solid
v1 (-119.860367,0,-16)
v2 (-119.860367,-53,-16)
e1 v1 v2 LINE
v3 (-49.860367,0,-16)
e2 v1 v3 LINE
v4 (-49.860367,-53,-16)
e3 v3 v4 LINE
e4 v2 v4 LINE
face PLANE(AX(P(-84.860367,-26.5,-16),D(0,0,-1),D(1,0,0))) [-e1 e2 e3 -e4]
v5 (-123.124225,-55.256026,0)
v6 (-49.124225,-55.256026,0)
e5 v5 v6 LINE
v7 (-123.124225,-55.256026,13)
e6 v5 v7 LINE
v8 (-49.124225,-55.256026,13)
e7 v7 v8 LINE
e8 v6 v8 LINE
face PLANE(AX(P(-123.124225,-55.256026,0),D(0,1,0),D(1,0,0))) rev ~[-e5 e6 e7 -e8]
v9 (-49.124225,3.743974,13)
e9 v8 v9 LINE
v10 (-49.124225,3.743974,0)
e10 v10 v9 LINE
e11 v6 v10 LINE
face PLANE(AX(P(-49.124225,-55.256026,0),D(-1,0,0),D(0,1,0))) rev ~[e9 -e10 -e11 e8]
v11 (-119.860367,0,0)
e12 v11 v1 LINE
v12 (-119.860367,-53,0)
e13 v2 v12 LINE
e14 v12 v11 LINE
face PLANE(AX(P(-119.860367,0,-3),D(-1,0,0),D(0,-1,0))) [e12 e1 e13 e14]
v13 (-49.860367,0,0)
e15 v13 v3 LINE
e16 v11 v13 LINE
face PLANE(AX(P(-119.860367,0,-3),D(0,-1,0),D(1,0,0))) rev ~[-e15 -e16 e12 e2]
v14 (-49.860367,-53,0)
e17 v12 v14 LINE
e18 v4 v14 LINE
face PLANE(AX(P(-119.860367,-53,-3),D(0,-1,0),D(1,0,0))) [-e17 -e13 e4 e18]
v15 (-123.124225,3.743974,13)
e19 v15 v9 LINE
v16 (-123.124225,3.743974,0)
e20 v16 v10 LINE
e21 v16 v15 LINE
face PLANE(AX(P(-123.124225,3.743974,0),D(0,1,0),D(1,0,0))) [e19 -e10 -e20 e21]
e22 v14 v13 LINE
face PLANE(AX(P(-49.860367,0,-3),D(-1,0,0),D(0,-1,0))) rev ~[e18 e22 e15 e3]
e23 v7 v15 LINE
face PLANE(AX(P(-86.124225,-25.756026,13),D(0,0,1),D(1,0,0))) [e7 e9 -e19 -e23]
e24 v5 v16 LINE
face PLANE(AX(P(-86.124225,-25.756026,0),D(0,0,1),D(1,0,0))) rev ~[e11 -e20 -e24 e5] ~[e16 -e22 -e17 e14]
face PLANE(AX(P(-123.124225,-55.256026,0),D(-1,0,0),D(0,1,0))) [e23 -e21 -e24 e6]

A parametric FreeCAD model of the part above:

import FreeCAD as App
import Part
import Sketcher

V = App.Vector
Q = App.Units.Quantity


def add_polygon(sketch, points):
    """Adds a closed chain of lines whose ends are joined by coincident constraints."""
    first, n = sketch.GeometryCount, len(points)
    for a, b in zip(points, points[1:] + points[:1]):
        sketch.addGeometry(Part.LineSegment(App.Vector(*a, 0), App.Vector(*b, 0)), False)
    for i in range(n):
        sketch.addConstraint(Sketcher.Constraint("Coincident", first + i, 2, first + (i + 1) % n, 1))

doc = App.newDocument("Part")
params = doc.addObject("Spreadsheet::Sheet", "Params")
for row, (alias, value) in enumerate([
    ("sketch1_width", "74 mm"),
    ("sketch1_height", "59 mm"),
    ("pad1_length", "13 mm"),
    ("sketch2_width", "70 mm"),
    ("sketch2_height", "53 mm"),
    ("pad2_length", "3 mm"),
    ("sketch3_width", "70 mm"),
    ("sketch3_height", "53 mm"),
    ("pad3_length", "13 mm"),
], start=1):
    params.set(f"A{row}", alias)
    params.set(f"B{row}", "=" + value)
    params.setAlias(f"B{row}", alias)

body = doc.addObject("PartDesign::Body", "Body")

# Sketch on XY plane
sketch1 = doc.addObject("Sketcher::SketchObject", "Sketch")
body.addObject(sketch1)
sketch1.AttachmentSupport = (doc.XY_Plane, [""])
sketch1.MapMode = "FlatFace"
add_polygon(sketch1, [(-123.124225, 3.743974), (-123.124225, -55.256026), (-49.124225, -55.256026), (-49.124225, 3.743974)])  # lines 0-3
sketch1.addConstraint([
    Sketcher.Constraint("Vertical", 0),
    Sketcher.Constraint("Horizontal", 1),
    Sketcher.Constraint("Vertical", 2),
    Sketcher.Constraint("Horizontal", 3),
    Sketcher.Constraint("DistanceX", 1, 1, 1, 2, Q("74 mm")),
    Sketcher.Constraint("DistanceY", 0, 2, 0, 1, Q("59 mm")),
    Sketcher.Constraint("DistanceX", 0, 2, -1, 1, Q("123.124225 mm")),
    Sketcher.Constraint("DistanceY", 0, 2, -1, 1, Q("55.256026 mm")),
])
sketch1.setExpression("Constraints[8]", "Params.sketch1_width")
sketch1.setExpression("Constraints[9]", "Params.sketch1_height")
pad1 = doc.addObject("PartDesign::Pad", "Pad")
body.addObject(pad1)
pad1.Profile = sketch1
pad1.setExpression("Length", "Params.pad1_length")

# Sketch on XY plane
sketch2 = doc.addObject("Sketcher::SketchObject", "Sketch001")
body.addObject(sketch2)
sketch2.AttachmentSupport = (doc.XY_Plane, [""])
sketch2.MapMode = "FlatFace"
add_polygon(sketch2, [(-119.860367, 0), (-119.860367, -53), (-49.860367, -53), (-49.860367, 0)])  # lines 0-3
sketch2.addConstraint([
    Sketcher.Constraint("Vertical", 0),
    Sketcher.Constraint("Horizontal", 1),
    Sketcher.Constraint("Vertical", 2),
    Sketcher.Constraint("Horizontal", 3),
    Sketcher.Constraint("PointOnObject", 2, 2, -1),
    Sketcher.Constraint("DistanceX", 1, 1, 1, 2, Q("70 mm")),
    Sketcher.Constraint("DistanceY", 0, 2, 0, 1, Q("53 mm")),
    Sketcher.Constraint("DistanceX", 0, 2, -1, 1, Q("119.860367 mm")),
])
sketch2.setExpression("Constraints[9]", "Params.sketch2_width")
sketch2.setExpression("Constraints[10]", "Params.sketch2_height")
pad2 = doc.addObject("PartDesign::Pad", "Pad001")
body.addObject(pad2)
pad2.Profile = sketch2
pad2.setExpression("Length", "Params.pad2_length")
pad2.Reversed = True

# Sketch on XY plane
sketch3 = doc.addObject("Sketcher::SketchObject", "Sketch002")
body.addObject(sketch3)
sketch3.AttachmentSupport = (doc.XY_Plane, [""])
sketch3.MapMode = "FlatFace"
sketch3.AttachmentOffset = App.Placement(V(0, 0, -3), App.Rotation())
add_polygon(sketch3, [(-119.860367, -53), (-119.860367, 0), (-49.860367, 0), (-49.860367, -53)])  # lines 0-3
sketch3.addConstraint([
    Sketcher.Constraint("Vertical", 0),
    Sketcher.Constraint("Horizontal", 1),
    Sketcher.Constraint("Vertical", 2),
    Sketcher.Constraint("Horizontal", 3),
    Sketcher.Constraint("PointOnObject", 0, 2, -1),
    Sketcher.Constraint("DistanceX", 1, 1, 1, 2, Q("70 mm")),
    Sketcher.Constraint("DistanceY", 0, 1, 0, 2, Q("53 mm")),
    Sketcher.Constraint("DistanceX", 0, 2, -1, 1, Q("119.860367 mm")),
])
sketch3.setExpression("Constraints[9]", "Params.sketch3_width")
sketch3.setExpression("Constraints[10]", "Params.sketch3_height")
pad3 = doc.addObject("PartDesign::Pad", "Pad002")
body.addObject(pad3)
pad3.Profile = sketch3
pad3.setExpression("Length", "Params.pad3_length")
pad3.Reversed = True

doc.recompute()
